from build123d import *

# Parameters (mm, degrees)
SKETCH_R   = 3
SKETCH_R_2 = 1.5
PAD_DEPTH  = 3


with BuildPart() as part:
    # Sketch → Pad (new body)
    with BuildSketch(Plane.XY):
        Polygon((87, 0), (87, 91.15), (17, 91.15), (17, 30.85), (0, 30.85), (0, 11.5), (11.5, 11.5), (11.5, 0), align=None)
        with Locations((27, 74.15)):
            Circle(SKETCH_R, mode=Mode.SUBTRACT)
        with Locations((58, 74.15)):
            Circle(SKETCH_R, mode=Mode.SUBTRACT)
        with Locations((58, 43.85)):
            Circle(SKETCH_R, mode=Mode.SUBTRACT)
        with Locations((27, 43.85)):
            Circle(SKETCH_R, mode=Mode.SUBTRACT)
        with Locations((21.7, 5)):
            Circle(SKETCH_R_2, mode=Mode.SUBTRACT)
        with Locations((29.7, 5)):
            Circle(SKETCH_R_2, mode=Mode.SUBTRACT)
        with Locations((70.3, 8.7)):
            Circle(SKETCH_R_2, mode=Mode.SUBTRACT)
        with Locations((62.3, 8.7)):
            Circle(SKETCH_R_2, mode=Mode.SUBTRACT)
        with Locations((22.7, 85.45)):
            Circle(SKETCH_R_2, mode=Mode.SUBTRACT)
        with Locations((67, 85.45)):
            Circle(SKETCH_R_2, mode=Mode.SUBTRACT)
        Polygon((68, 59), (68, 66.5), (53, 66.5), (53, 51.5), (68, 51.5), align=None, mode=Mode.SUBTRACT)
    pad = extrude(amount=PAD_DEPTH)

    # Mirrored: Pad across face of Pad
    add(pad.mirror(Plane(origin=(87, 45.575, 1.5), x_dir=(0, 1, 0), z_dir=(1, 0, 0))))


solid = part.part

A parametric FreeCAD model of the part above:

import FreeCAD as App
import Part
import Sketcher

V = App.Vector
Q = App.Units.Quantity

doc = App.newDocument("Part")
body = doc.addObject("PartDesign::Body", "Body")

sketch1 = doc.addObject("Sketcher::SketchObject", "Sketch")
body.addObject(sketch1)
sketch1.AttachmentSupport = (doc.XY_Plane, [""])
sketch1.MapMode = "FlatFace"
sketch1.addGeometry(Part.LineSegment(V(87, 0, 0), V(87, 91.2, 0)), False)
sketch1.addGeometry(Part.LineSegment(V(87, 91.2, 0), V(17, 91.2, 0)), False)
sketch1.addGeometry(Part.LineSegment(V(17, 91.2, 0), V(17, 30.9, 0)), False)
sketch1.addGeometry(Part.LineSegment(V(17, 30.9, 0), V(0, 30.9, 0)), False)
sketch1.addGeometry(Part.LineSegment(V(0, 30.9, 0), V(0, 11.5, 0)), False)
sketch1.addGeometry(Part.LineSegment(V(0, 11.5, 0), V(11.5, 11.5, 0)), False)
sketch1.addGeometry(Part.LineSegment(V(11.5, 11.5, 0), V(11.5, 0, 0)), False)
sketch1.addGeometry(Part.LineSegment(V(11.5, 0, 0), V(87, 0, 0)), False)
sketch1.addGeometry(Part.Circle(V(21.7, 5, 0), V(0, 0, 1), 1.5), False)
sketch1.addGeometry(Part.Circle(V(29.7, 5, 0), V(0, 0, 1), 1.5), False)
sketch1.addGeometry(Part.Circle(V(27, 43.9, 0), V(0, 0, 1), 3), False)
sketch1.addGeometry(Part.Circle(V(62.3, 8.7, 0), V(0, 0, 1), 1.5), False)
sketch1.addGeometry(Part.Circle(V(70.3, 8.7, 0), V(0, 0, 1), 1.5), False)
sketch1.addGeometry(Part.Circle(V(58, 43.9, 0), V(0, 0, 1), 3), False)
sketch1.addGeometry(Part.Circle(V(27, 74.2, 0), V(0, 0, 1), 3), False)
sketch1.addGeometry(Part.Circle(V(22.7, 85.5, 0), V(0, 0, 1), 1.5), False)
sketch1.addGeometry(Part.LineSegment(V(68, 66.5, 0), V(68, 51.5, 0)), False)
sketch1.addGeometry(Part.LineSegment(V(68, 51.5, 0), V(53, 51.5, 0)), False)
sketch1.addGeometry(Part.LineSegment(V(53, 51.5, 0), V(53, 66.5, 0)), False)
sketch1.addGeometry(Part.LineSegment(V(53, 66.5, 0), V(68, 66.5, 0)), False)
sketch1.addGeometry(Part.Circle(V(58, 74.2, 0), V(0, 0, 1), 3), False)
sketch1.addGeometry(Part.Circle(V(67, 85.5, 0), V(0, 0, 1), 1.5), False)
sketch1.addConstraint(Sketcher.Constraint("Coincident", 0, 2, 1, 1))
sketch1.addConstraint(Sketcher.Constraint("Coincident", 1, 2, 2, 1))
sketch1.addConstraint(Sketcher.Constraint("Coincident", 2, 2, 3, 1))
sketch1.addConstraint(Sketcher.Constraint("Coincident", 3, 2, 4, 1))
sketch1.addConstraint(Sketcher.Constraint("Coincident", 4, 2, 5, 1))
sketch1.addConstraint(Sketcher.Constraint("Coincident", 5, 2, 6, 1))
sketch1.addConstraint(Sketcher.Constraint("Coincident", 6, 2, 7, 1))
sketch1.addConstraint(Sketcher.Constraint("Coincident", 7, 2, 0, 1))
sketch1.addConstraint(Sketcher.Constraint("Coincident", 16, 2, 17, 1))
sketch1.addConstraint(Sketcher.Constraint("Coincident", 17, 2, 18, 1))
sketch1.addConstraint(Sketcher.Constraint("Coincident", 18, 2, 19, 1))
sketch1.addConstraint(Sketcher.Constraint("Coincident", 19, 2, 16, 1))
sketch1.addConstraint(Sketcher.Constraint("Vertical", 0))
sketch1.addConstraint(Sketcher.Constraint("Horizontal", 1))
sketch1.addConstraint(Sketcher.Constraint("Vertical", 2))
sketch1.addConstraint(Sketcher.Constraint("Horizontal", 3))
sketch1.addConstraint(Sketcher.Constraint("Vertical", 4))
sketch1.addConstraint(Sketcher.Constraint("Horizontal", 5))
sketch1.addConstraint(Sketcher.Constraint("Vertical", 6))
sketch1.addConstraint(Sketcher.Constraint("Horizontal", 7))
sketch1.addConstraint(Sketcher.Constraint("Vertical", 16))
sketch1.addConstraint(Sketcher.Constraint("Horizontal", 17))
sketch1.addConstraint(Sketcher.Constraint("Vertical", 18))
sketch1.addConstraint(Sketcher.Constraint("Horizontal", 19))
sketch1.addConstraint(Sketcher.Constraint("Equal", 8, 9))
sketch1.addConstraint(Sketcher.Constraint("Equal", 9, 11))
sketch1.addConstraint(Sketcher.Constraint("Equal", 11, 12))
sketch1.addConstraint(Sketcher.Constraint("Equal", 10, 13))
sketch1.addConstraint(Sketcher.Constraint("Equal", 13, 14))
sketch1.addConstraint(Sketcher.Constraint("Equal", 12, 15))
sketch1.addConstraint(Sketcher.Constraint("Equal", 14, 20))
sketch1.addConstraint(Sketcher.Constraint("Equal", 15, 21))
sketch1.addConstraint(Sketcher.Constraint("PointOnObject", 3, 2, -2))
sketch1.addConstraint(Sketcher.Constraint("PointOnObject", 6, 2, -1))
sketch1.addConstraint(Sketcher.Constraint("Horizontal", 8, 3, 9, 3))
sketch1.addConstraint(Sketcher.Constraint("Horizontal", 11, 3, 12, 3))
sketch1.addConstraint(Sketcher.Constraint("Horizontal", 10, 3, 13, 3))
sketch1.addConstraint(Sketcher.Constraint("Horizontal", 14, 3, 20, 3))
sketch1.addConstraint(Sketcher.Constraint("Horizontal", 15, 3, 21, 3))
sketch1.addConstraint(Sketcher.Constraint("Vertical", 10, 3, 14, 3))
sketch1.addConstraint(Sketcher.Constraint("Vertical", 13, 3, 20, 3))
sketch1.addConstraint(Sketcher.Constraint("Equal", 5, 6))
sketch1.addConstraint(Sketcher.Constraint("Equal", 19, 16))
sketch1.addConstraint(Sketcher.Constraint("Diameter", 8, Q("3 mm")))
sketch1.addConstraint(Sketcher.Constraint("Diameter", 10, Q("6 mm")))
sketch1.addConstraint(Sketcher.Constraint("DistanceX", 1, 2, 1, 1, Q("70 mm")))
sketch1.addConstraint(Sketcher.Constraint("DistanceX", 3, 2, 3, 1, Q("17 mm")))
sketch1.addConstraint(Sketcher.Constraint("DistanceX", 17, 2, 17, 1, Q("15 mm")))
sketch1.addConstraint(Sketcher.Constraint("DistanceX", 5, 1, 5, 2, Q("11.5 mm")))
sketch1.addConstraint(Sketcher.Constraint("DistanceY", 2, 2, 2, 1, Q("60.3 mm")))
sketch1.addConstraint(Sketcher.Constraint("DistanceY", -1, 1, 8, 3, Q("5 mm")))
sketch1.addConstraint(Sketcher.Constraint("DistanceX", -1, 1, 10, 3, Q("27 mm")))
sketch1.addConstraint(Sketcher.Constraint("DistanceX", -1, 1, 13, 3, Q("58 mm")))
sketch1.addConstraint(Sketcher.Constraint("DistanceX", -1, 1, 21, 3, Q("67 mm")))
sketch1.addConstraint(Sketcher.Constraint("DistanceX", -1, 1, 16, 2, Q("68 mm")))
sketch1.addConstraint(Sketcher.Constraint("DistanceX", 8, 3, 9, 3, Q("8 mm")))
sketch1.addConstraint(Sketcher.Constraint("DistanceX", 11, 3, 12, 3, Q("8 mm")))
sketch1.addConstraint(Sketcher.Constraint("DistanceX", 8, 3, 15, 3, Q("1 mm")))
sketch1.addConstraint(Sketcher.Constraint("DistanceY", 20, 3, 0, 2, Q("17 mm")))
sketch1.addConstraint(Sketcher.Constraint("DistanceY", 2, 2, 10, 3, Q("13 mm")))
sketch1.addConstraint(Sketcher.Constraint("DistanceY", 0, 1, 0, 2, Q("91.15 mm")))
sketch1.addConstraint(Sketcher.Constraint("DistanceX", -1, 1, 8, 3, Q("21.7 mm")))
sketch1.addConstraint(Sketcher.Constraint("DistanceX", -1, 1, 11, 3, Q("62.3 mm")))
sketch1.addConstraint(Sketcher.Constraint("DistanceY", -1, 1, 11, 3, Q("8.7 mm")))
sketch1.addConstraint(Sketcher.Constraint("DistanceY", -1, 1, 16, 2, Q("51.5 mm")))
sketch1.addConstraint(Sketcher.Constraint("DistanceY", 14, 3, 15, 3, Q("11.3 mm")))
pad1 = doc.addObject("PartDesign::Pad", "Pad")
body.addObject(pad1)
pad1.Profile = sketch1
pad1.Length = 3
doc.recompute()

datumplane = doc.addObject("PartDesign::Plane", "DatumPlane")
body.addObject(datumplane)
datumplane.AttachmentSupport = (doc.YZ_Plane, [""])
datumplane.MapMode = "FlatFace"
datumplane.AttachmentOffset = App.Placement(V(0, 0, 87), App.Rotation())
mirrored = doc.addObject("PartDesign::Mirrored", "Mirrored")
body.addObject(mirrored)
mirrored.Originals = [pad1]
mirrored.MirrorPlane = (datumplane, [""])
body.Tip = mirrored

doc.recompute()
